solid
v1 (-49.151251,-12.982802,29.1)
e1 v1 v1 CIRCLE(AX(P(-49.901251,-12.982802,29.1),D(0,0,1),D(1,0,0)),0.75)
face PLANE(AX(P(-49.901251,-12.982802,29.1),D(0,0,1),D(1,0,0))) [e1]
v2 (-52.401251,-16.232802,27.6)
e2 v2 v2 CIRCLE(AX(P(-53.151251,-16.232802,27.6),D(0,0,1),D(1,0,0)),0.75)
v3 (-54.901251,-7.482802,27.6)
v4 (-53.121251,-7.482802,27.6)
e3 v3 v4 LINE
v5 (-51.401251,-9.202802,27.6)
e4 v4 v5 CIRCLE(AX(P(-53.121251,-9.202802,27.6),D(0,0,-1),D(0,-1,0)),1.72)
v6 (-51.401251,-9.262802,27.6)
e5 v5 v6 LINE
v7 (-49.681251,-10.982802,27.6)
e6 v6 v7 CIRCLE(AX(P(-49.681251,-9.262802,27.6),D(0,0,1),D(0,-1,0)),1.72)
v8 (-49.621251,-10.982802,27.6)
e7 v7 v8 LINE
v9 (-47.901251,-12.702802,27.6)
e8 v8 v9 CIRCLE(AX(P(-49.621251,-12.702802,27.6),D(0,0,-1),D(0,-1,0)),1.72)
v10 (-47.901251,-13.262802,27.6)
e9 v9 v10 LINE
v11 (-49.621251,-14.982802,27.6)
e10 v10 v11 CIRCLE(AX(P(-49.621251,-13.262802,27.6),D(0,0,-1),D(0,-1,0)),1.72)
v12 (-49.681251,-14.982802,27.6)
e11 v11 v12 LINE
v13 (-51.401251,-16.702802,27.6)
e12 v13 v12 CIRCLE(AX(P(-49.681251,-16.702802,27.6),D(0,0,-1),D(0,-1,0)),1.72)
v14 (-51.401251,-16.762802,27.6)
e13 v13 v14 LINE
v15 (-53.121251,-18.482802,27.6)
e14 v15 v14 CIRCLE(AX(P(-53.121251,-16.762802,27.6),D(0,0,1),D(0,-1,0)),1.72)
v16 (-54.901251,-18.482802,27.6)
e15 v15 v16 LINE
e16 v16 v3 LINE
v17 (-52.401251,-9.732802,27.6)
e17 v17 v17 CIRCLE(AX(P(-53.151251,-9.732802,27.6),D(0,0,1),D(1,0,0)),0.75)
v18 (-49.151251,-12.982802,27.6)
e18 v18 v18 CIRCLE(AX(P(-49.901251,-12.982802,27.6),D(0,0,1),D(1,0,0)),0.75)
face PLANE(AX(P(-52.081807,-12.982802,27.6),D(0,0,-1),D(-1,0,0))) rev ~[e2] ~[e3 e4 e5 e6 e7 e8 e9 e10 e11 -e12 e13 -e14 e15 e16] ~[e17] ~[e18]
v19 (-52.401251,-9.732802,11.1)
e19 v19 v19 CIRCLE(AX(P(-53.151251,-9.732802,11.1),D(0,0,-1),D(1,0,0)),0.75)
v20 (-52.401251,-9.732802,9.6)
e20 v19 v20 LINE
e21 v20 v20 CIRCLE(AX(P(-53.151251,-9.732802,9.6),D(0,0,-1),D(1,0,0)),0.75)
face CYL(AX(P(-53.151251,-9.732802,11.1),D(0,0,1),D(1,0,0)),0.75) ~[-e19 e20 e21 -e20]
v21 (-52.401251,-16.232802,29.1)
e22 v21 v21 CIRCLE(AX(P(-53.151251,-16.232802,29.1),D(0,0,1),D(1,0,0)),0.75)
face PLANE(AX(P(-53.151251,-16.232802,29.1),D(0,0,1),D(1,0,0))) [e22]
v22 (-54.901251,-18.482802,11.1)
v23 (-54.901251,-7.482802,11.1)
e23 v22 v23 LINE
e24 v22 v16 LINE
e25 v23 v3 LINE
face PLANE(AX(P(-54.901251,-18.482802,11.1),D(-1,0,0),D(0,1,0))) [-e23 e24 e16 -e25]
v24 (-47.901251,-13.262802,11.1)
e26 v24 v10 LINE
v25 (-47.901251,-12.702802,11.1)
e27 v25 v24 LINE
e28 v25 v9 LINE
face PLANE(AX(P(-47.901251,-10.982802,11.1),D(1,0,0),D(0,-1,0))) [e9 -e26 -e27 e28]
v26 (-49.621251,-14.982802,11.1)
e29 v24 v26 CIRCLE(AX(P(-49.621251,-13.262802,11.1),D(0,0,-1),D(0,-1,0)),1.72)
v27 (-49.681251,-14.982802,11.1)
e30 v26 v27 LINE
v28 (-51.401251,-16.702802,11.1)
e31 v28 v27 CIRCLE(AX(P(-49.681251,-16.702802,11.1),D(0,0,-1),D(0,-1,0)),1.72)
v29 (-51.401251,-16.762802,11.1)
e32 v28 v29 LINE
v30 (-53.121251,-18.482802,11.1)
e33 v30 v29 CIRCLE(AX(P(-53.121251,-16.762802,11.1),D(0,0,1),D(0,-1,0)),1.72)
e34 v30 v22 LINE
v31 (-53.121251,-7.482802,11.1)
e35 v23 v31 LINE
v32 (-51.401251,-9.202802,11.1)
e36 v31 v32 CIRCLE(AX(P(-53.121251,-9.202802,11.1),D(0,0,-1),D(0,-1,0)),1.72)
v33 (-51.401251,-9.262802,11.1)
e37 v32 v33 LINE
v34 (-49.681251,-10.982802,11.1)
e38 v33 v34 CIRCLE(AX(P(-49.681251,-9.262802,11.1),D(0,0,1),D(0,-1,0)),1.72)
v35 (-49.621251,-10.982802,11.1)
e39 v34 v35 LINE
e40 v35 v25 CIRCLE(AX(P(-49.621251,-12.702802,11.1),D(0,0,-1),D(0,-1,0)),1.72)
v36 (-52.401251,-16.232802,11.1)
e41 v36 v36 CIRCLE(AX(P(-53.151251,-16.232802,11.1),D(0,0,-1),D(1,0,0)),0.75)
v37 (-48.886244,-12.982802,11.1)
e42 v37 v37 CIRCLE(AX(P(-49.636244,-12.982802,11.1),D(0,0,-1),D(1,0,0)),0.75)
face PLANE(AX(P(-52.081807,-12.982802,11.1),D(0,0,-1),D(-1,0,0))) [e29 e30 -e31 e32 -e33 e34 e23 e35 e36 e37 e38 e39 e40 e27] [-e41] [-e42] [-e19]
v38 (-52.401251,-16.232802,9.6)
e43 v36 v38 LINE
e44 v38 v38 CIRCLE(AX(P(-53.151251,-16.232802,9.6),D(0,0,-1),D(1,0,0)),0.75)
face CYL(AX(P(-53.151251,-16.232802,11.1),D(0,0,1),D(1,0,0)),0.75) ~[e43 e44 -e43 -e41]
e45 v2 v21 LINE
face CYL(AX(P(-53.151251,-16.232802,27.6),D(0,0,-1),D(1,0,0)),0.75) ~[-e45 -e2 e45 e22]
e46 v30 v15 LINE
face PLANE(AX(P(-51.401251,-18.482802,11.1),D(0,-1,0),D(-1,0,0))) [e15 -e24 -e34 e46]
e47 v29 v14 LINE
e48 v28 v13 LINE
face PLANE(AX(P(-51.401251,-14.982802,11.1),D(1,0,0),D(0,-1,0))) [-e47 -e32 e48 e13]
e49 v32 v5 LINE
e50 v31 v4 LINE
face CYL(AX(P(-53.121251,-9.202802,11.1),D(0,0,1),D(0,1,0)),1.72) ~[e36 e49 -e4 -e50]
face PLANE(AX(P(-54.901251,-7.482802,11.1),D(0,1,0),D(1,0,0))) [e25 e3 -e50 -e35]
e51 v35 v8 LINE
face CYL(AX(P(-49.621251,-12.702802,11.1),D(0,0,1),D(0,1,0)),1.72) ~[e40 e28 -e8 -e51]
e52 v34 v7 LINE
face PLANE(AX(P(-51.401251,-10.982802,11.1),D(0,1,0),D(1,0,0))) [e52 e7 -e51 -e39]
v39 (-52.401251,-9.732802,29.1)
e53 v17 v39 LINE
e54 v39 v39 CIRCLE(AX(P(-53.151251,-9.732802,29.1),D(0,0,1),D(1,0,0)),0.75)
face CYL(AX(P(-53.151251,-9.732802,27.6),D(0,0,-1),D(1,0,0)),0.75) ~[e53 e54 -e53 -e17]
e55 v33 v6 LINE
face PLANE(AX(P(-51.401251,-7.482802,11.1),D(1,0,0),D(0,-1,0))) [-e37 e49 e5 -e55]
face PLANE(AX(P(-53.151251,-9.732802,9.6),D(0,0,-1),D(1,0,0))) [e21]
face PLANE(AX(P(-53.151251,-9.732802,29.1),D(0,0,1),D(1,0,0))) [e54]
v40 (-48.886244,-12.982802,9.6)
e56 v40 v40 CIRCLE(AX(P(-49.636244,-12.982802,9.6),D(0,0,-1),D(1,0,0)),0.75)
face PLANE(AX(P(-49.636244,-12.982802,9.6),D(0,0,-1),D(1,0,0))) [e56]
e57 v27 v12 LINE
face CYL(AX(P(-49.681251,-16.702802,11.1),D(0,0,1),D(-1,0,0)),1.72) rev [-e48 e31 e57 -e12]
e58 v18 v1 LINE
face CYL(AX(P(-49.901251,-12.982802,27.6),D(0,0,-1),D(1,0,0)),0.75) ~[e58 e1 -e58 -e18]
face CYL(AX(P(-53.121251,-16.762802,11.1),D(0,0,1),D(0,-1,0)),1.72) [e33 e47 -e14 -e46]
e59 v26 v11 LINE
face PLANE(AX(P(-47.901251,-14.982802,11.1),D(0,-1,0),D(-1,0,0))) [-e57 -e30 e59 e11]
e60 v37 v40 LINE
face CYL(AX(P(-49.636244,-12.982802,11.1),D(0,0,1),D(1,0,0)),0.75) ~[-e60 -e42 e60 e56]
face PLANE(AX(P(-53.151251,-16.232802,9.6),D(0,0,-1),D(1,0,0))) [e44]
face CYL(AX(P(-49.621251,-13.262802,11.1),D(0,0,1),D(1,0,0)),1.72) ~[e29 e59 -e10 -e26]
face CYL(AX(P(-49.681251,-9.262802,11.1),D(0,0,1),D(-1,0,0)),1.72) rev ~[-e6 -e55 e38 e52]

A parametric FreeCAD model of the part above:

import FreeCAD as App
import Part
import Sketcher
from FreeCAD import Vector
Q = App.Units.Quantity


def edges_at(feature, points):
    """Names of the edges that pass closest to the given points."""
    edges = feature.Shape.Edges
    near = lambda p: min(range(len(edges)), key=lambda i: edges[i].distToShape(Part.Vertex(*p))[0])
    return sorted({f"Edge{near(p) + 1}" for p in points})


def add_polygon(sketch, points):
    """Adds a closed chain of lines whose ends are joined by coincident constraints."""
    first, n = sketch.GeometryCount, len(points)
    for a, b in zip(points, points[1:] + points[:1]):
        sketch.addGeometry(Part.LineSegment(App.Vector(*a, 0), App.Vector(*b, 0)), False)
    for i in range(n):
        sketch.addConstraint(Sketcher.Constraint("Coincident", first + i, 2, first + (i + 1) % n, 1))

doc = App.newDocument("Part")
body = doc.addObject("PartDesign::Body", "Body")

# Sketch on XY plane
sketch1 = body.newObject("Sketcher::SketchObject", "Sketch")
sketch1.AttachmentSupport = (doc.getObject("XY_Plane"), [""])
sketch1.MapMode = "FlatFace"
add_polygon(sketch1, [(-50, -22.7), (-53.5, -22.7), (-53.5, -33.7), (-50, -33.7), (-50, -30.2), (-46.5, -30.2), (-46.5, -26.2), (-50, -26.2)])  # lines 0-7
sketch1.addConstraint([
    Sketcher.Constraint("Horizontal", 0),
    Sketcher.Constraint("Vertical", 1),
    Sketcher.Constraint("Horizontal", 2),
    Sketcher.Constraint("Vertical", 3),
    Sketcher.Constraint("Horizontal", 4),
    Sketcher.Constraint("Vertical", 5),
    Sketcher.Constraint("Horizontal", 6),
    Sketcher.Constraint("Vertical", 7),
    Sketcher.Constraint("Vertical", 3, 2, 6, 2),
    Sketcher.Constraint("Equal", 2, 4),
    Sketcher.Constraint("Equal", 6, 3),
    Sketcher.Constraint("Equal", 3, 7),
    Sketcher.Constraint("DistanceY", 1, 2, 1, 1, Q("11 mm")),
    Sketcher.Constraint("DistanceY", 5, 1, 5, 2, Q("4 mm")),
    Sketcher.Constraint("DistanceY", 0, 2, -1, 1, Q("22.682802 mm")),
    Sketcher.Constraint("DistanceX", 0, 2, -1, 1, Q("53.501251 mm")),
])
pad1 = body.newObject("PartDesign::Pad", "Pad")
pad1.Profile = sketch1
pad1.Length = 16.5

# Sketch on XY plane
sketch2 = body.newObject("Sketcher::SketchObject", "Sketch001")
sketch2.AttachmentSupport = (doc.getObject("XY_Plane"), [""])
sketch2.MapMode = "FlatFace"
sketch2.AttachmentOffset = App.Placement(Vector(0, 0, 16.5), App.Rotation())
sketch2.addGeometry([
    Part.Circle(Vector(-51.8, -24.9, 0), Vector(0, 0, 1), 0.8),
    Part.Circle(Vector(-51.8, -31.4, 0), Vector(0, 0, 1), 0.8),
    Part.Circle(Vector(-48.5, -28.2, 0), Vector(0, 0, 1), 0.8),
], False)
sketch2.addConstraint([
    Sketcher.Constraint("Equal", 0, 1),
    Sketcher.Constraint("Equal", 1, 2),
    Sketcher.Constraint("Vertical", 0, 3, 1, 3),
    Sketcher.Constraint("Diameter", 0, Q("1.5 mm")),
    Sketcher.Constraint("DistanceY", 1, 3, 0, 3, Q("6.5 mm")),
    Sketcher.Constraint("DistanceX", 0, 3, 2, 3, Q("3.25 mm")),
    Sketcher.Constraint("DistanceY", 2, 3, 0, 3, Q("3.25 mm")),
    Sketcher.Constraint("DistanceY", 0, 3, -1, 1, Q("24.932802 mm")),
    Sketcher.Constraint("DistanceX", 0, 3, -1, 1, Q("51.751251 mm")),
])
pad2 = body.newObject("PartDesign::Pad", "Pad001")
pad2.Profile = sketch2
pad2.Length = 1.5

# Sketch on XY plane
sketch3 = body.newObject("Sketcher::SketchObject", "Sketch002")
sketch3.AttachmentSupport = (doc.getObject("XY_Plane"), [""])
sketch3.MapMode = "FlatFace"
sketch3.addGeometry([
    Part.Circle(Vector(-51.8, -31.4, 0), Vector(0, 0, 1), 0.8),
    Part.Circle(Vector(-51.8, -24.9, 0), Vector(0, 0, 1), 0.8),
    Part.Circle(Vector(-48.2, -28.2, 0), Vector(0, 0, 1), 0.8),
], False)
sketch3.addConstraint([
    Sketcher.Constraint("Equal", 0, 1),
    Sketcher.Constraint("Equal", 1, 2),
    Sketcher.Constraint("Vertical", 0, 3, 1, 3),
    Sketcher.Constraint("Diameter", 0, Q("1.5 mm")),
    Sketcher.Constraint("DistanceY", 0, 3, 1, 3, Q("6.5 mm")),
    Sketcher.Constraint("DistanceY", 0, 3, 2, 3, Q("3.25 mm")),
    Sketcher.Constraint("DistanceY", 0, 3, -1, 1, Q("31.432802 mm")),
    Sketcher.Constraint("DistanceX", 0, 3, -1, 1, Q("51.751251 mm")),
    Sketcher.Constraint("DistanceX", 2, 3, -1, 1, Q("48.236244 mm")),
])
pad3 = body.newObject("PartDesign::Pad", "Pad002")
pad3.Profile = sketch3
pad3.Length = 1.5
pad3.Reversed = True
doc.recompute()

fillet = body.newObject("PartDesign::Fillet", "Fillet")
fillet.Base = (pad3, edges_at(pad3, [
    (-50.001, -30.183, 8.25),
    (-50.001, -33.683, 8.25),
    (-46.501, -30.183, 8.25),
    (-46.501, -26.183, 8.25),
    (-50.001, -22.683, 8.25),
    (-50.001, -26.183, 8.25),
]))
fillet.Radius = 1.72
body2 = doc.addObject("PartDesign::Body", "Body001")
doc.recompute()

body.Placement = App.Placement(Vector(-1.4, 15.2, 11.1), App.Rotation(Vector(0, 0, 1), 0))
boolean = body2.newObject("PartDesign::Boolean", "Boolean")
boolean.Type = "Fuse"
boolean.addObjects([body])

doc.recompute()
